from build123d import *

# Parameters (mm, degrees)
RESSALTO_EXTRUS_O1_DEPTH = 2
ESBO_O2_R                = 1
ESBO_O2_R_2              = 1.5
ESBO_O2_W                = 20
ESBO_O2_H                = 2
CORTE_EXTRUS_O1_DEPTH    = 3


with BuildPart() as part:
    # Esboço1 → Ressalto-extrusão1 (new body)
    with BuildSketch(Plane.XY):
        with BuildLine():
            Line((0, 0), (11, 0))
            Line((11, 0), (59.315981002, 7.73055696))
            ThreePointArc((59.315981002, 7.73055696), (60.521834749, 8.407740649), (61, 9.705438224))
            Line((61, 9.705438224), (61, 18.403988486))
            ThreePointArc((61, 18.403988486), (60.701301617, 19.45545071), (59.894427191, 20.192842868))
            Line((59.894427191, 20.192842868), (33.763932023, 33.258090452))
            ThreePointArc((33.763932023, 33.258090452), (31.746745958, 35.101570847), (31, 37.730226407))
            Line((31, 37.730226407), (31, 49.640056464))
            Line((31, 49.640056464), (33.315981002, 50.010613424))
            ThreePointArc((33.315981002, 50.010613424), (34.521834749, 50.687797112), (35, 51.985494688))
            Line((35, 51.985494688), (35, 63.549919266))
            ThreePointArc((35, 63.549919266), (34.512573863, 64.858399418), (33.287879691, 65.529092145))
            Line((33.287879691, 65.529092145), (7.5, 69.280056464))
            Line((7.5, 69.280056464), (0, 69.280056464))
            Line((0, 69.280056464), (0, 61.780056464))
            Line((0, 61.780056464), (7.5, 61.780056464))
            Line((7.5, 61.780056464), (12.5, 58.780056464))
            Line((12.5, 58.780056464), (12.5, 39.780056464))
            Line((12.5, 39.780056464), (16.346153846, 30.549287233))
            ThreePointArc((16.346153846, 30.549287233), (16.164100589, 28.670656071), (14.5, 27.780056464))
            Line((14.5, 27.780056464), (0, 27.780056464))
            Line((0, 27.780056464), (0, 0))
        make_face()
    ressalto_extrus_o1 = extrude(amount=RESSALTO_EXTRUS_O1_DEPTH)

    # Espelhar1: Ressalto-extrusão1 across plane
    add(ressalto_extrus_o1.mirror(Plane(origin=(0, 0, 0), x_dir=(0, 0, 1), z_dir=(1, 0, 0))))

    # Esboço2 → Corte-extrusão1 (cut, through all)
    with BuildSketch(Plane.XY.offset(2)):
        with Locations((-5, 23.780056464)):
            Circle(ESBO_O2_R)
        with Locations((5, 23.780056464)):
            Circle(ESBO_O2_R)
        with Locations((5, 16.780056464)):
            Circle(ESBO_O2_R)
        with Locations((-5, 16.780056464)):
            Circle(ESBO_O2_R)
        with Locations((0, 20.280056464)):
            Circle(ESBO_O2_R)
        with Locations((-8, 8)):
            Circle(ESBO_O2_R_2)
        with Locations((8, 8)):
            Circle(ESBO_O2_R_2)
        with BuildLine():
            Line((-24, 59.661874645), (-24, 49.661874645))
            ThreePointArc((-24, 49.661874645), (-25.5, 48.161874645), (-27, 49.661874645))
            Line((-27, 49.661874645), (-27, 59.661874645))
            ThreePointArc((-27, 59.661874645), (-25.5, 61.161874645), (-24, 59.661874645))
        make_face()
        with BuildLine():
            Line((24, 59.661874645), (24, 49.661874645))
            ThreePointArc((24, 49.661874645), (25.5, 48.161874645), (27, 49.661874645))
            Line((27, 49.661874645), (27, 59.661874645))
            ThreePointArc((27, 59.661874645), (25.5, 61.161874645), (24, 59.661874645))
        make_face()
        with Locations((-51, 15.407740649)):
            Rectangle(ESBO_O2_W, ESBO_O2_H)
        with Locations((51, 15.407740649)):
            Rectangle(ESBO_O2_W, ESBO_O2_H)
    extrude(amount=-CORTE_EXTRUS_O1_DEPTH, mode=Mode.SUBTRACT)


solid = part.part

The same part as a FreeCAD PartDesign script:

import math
import FreeCAD as App
import Part
import Sketcher
Q = App.Units.Quantity


def add_polygon(sketch, points):
    """Adds a closed chain of lines whose ends are joined by coincident constraints."""
    first, n = sketch.GeometryCount, len(points)
    for a, b in zip(points, points[1:] + points[:1]):
        sketch.addGeometry(Part.LineSegment(App.Vector(*a, 0), App.Vector(*b, 0)), False)
    for i in range(n):
        sketch.addConstraint(Sketcher.Constraint("Coincident", first + i, 2, first + (i + 1) % n, 1))

doc = App.newDocument("Part")
params = doc.addObject("Spreadsheet::Sheet", "Params")
for row, (alias, value) in enumerate([
    ("sketch1_radius", "2 mm"),
    ("sketch1_radius2", "5 mm"),
    ("sketch1_width", "11 mm"),
    ("sketch1_height", "19 mm"),
    ("sketch1_length", "10 mm"),
    ("pad1_length", "2 mm"),
    ("sketch2_diameter", "2 mm"),
    ("sketch2_diameter2", "3 mm"),
    ("sketch2_width", "20 mm"),
    ("sketch2_height", "10 mm"),
    ("sketch2_height2", "2 mm"),
], start=1):
    params.set(f"A{row}", alias)
    params.set(f"B{row}", "=" + value)
    params.setAlias(f"B{row}", alias)

body = doc.addObject("PartDesign::Body", "Body")

# Sketch on XY plane
sketch1 = doc.addObject("Sketcher::SketchObject", "Sketch")
body.addObject(sketch1)
sketch1.AttachmentSupport = (doc.XY_Plane, [""])
sketch1.MapMode = "FlatFace"
sketch1.addGeometry([
    Part.LineSegment(App.Vector(0, 0, 0), App.Vector(11, 0, 0)),  # 0
    Part.LineSegment(App.Vector(11, 0, 0), App.Vector(59.315981, 7.730557, 0)),  # 1
    Part.ArcOfCircle(Part.Circle(App.Vector(59, 9.705438, 0), App.Vector(0, 0, 1), 2), math.radians(-80.909723), math.radians(0)),  # 2
    Part.LineSegment(App.Vector(61, 9.705438, 0), App.Vector(61, 18.403988, 0)),  # 3
    Part.ArcOfCircle(Part.Circle(App.Vector(59, 18.403988, 0), App.Vector(0, 0, 1), 2), math.radians(0), math.radians(63.434949)),  # 4
    Part.LineSegment(App.Vector(59.894427, 20.192843, 0), App.Vector(33.763932, 33.25809, 0)),  # 5
    Part.ArcOfCircle(Part.Circle(App.Vector(36, 37.730226, 0), App.Vector(0, 0, 1), 5), math.radians(180), math.radians(243.434949)),  # 6
    Part.LineSegment(App.Vector(31, 37.730226, 0), App.Vector(31, 49.640056, 0)),  # 7
    Part.LineSegment(App.Vector(31, 49.640056, 0), App.Vector(33.315981, 50.010613, 0)),  # 8
    Part.ArcOfCircle(Part.Circle(App.Vector(33, 51.985495, 0), App.Vector(0, 0, 1), 2), math.radians(-80.909723), math.radians(0)),  # 9
    Part.LineSegment(App.Vector(35, 51.985495, 0), App.Vector(35, 63.549919, 0)),  # 10
    Part.ArcOfCircle(Part.Circle(App.Vector(33, 63.549919, 0), App.Vector(0, 0, 1), 2), math.radians(0), math.radians(81.724107)),  # 11
    Part.LineSegment(App.Vector(33.28788, 65.529092, 0), App.Vector(7.5, 69.280056, 0)),  # 12
    Part.LineSegment(App.Vector(7.5, 69.280056, 0), App.Vector(0, 69.280056, 0)),  # 13
    Part.LineSegment(App.Vector(0, 69.280056, 0), App.Vector(0, 61.780056, 0)),  # 14
    Part.LineSegment(App.Vector(0, 61.780056, 0), App.Vector(7.5, 61.780056, 0)),  # 15
    Part.LineSegment(App.Vector(7.5, 61.780056, 0), App.Vector(12.5, 58.780056, 0)),  # 16
    Part.LineSegment(App.Vector(12.5, 58.780056, 0), App.Vector(12.5, 39.780056, 0)),  # 17
    Part.LineSegment(App.Vector(12.5, 39.780056, 0), App.Vector(16.346154, 30.549287, 0)),  # 18
    Part.ArcOfCircle(Part.Circle(App.Vector(14.5, 29.780056, 0), App.Vector(0, 0, 1), 2), math.radians(-90), math.radians(22.619865)),  # 19
    Part.LineSegment(App.Vector(14.5, 27.780056, 0), App.Vector(0, 27.780056, 0)),  # 20
    Part.LineSegment(App.Vector(0, 27.780056, 0), App.Vector(0, 0, 0)),  # 21
], False)
sketch1.addConstraint([
    Sketcher.Constraint("Coincident", 0, 2, 1, 1),
    Sketcher.Constraint("Tangent", 1, 2, 2, 1),
    Sketcher.Constraint("Tangent", 2, 2, 3, 1),
    Sketcher.Constraint("Tangent", 3, 2, 4, 1),
    Sketcher.Constraint("Tangent", 4, 2, 5, 1),
    Sketcher.Constraint("Tangent", 5, 2, 6, 2),
    Sketcher.Constraint("Tangent", 6, 1, 7, 1),
    Sketcher.Constraint("Coincident", 7, 2, 8, 1),
    Sketcher.Constraint("Tangent", 8, 2, 9, 1),
    Sketcher.Constraint("Tangent", 9, 2, 10, 1),
    Sketcher.Constraint("Tangent", 10, 2, 11, 1),
    Sketcher.Constraint("Tangent", 11, 2, 12, 1),
    Sketcher.Constraint("Coincident", 12, 2, 13, 1),
    Sketcher.Constraint("Coincident", 13, 2, 14, 1),
    Sketcher.Constraint("Coincident", 14, 2, 15, 1),
    Sketcher.Constraint("Coincident", 15, 2, 16, 1),
    Sketcher.Constraint("Coincident", 16, 2, 17, 1),
    Sketcher.Constraint("Coincident", 17, 2, 18, 1),
    Sketcher.Constraint("Tangent", 18, 2, 19, 2),
    Sketcher.Constraint("Tangent", 19, 1, 20, 1),
    Sketcher.Constraint("Coincident", 20, 2, 21, 1),
    Sketcher.Constraint("Coincident", 21, 2, 0, 1),
    Sketcher.Constraint("Horizontal", 0),
    Sketcher.Constraint("Vertical", 3),
    Sketcher.Constraint("Vertical", 7),
    Sketcher.Constraint("Vertical", 10),
    Sketcher.Constraint("Horizontal", 13),
    Sketcher.Constraint("Vertical", 14),
    Sketcher.Constraint("Horizontal", 15),
    Sketcher.Constraint("Vertical", 17),
    Sketcher.Constraint("Horizontal", 20),
    Sketcher.Constraint("Vertical", 21),
    Sketcher.Constraint("Coincident", 21, 2, -1, 1),
    Sketcher.Constraint("Equal", 2, 4),
    Sketcher.Constraint("Equal", 4, 9),
    Sketcher.Constraint("Equal", 9, 11),
    Sketcher.Constraint("Equal", 11, 19),
    Sketcher.Constraint("PointOnObject", 13, 2, -2),
    Sketcher.Constraint("Parallel", 1, 8),
    Sketcher.Constraint("Vertical", 12, 2, 15, 2),
    Sketcher.Constraint("Equal", 15, 14),
    Sketcher.Constraint("Radius", 2, Q("2 mm")),
    Sketcher.Constraint("Radius", 6, Q("5 mm")),
    Sketcher.Constraint("DistanceX", 0, 1, 0, 2, Q("11 mm")),
    Sketcher.Constraint("DistanceY", 17, 2, 17, 1, Q("19 mm")),
    Sketcher.Constraint("Distance", 18, Q("10 mm")),
    Sketcher.Constraint("DistanceX", 13, 2, 13, 1, Q("7.5 mm")),
    Sketcher.Constraint("DistanceX", 20, 2, 20, 1, Q("14.5 mm")),
    Sketcher.Constraint("DistanceX", -1, 1, 2, 3, Q("59 mm")),
    Sketcher.Constraint("DistanceX", -1, 1, 6, 3, Q("36 mm")),
    Sketcher.Constraint("DistanceX", -1, 1, 9, 3, Q("33 mm")),
    Sketcher.Constraint("DistanceX", 15, 2, 16, 2, Q("5 mm")),
    Sketcher.Constraint("DistanceY", 16, 2, 15, 2, Q("3 mm")),
    Sketcher.Constraint("DistanceY", 7, 2, 12, 2, Q("19.64 mm")),
    Sketcher.Constraint("DistanceY", 3, 1, 3, 2, Q("8.69855 mm")),
    Sketcher.Constraint("DistanceY", 7, 1, 7, 2, Q("11.90983 mm")),
    Sketcher.Constraint("DistanceY", 1, 2, 19, 3, Q("22.0495 mm")),
    Sketcher.Constraint("DistanceX", 11, 2, 8, 2, Q("0.028101 mm")),
    Sketcher.Constraint("Distance", 8, Q("2.345438 mm")),
])
sketch1.setExpression("Constraints[41]", "Params.sketch1_radius")
sketch1.setExpression("Constraints[42]", "Params.sketch1_radius2")
sketch1.setExpression("Constraints[43]", "Params.sketch1_width")
sketch1.setExpression("Constraints[44]", "Params.sketch1_height")
sketch1.setExpression("Constraints[45]", "Params.sketch1_length")
pad1 = doc.addObject("PartDesign::Pad", "Pad")
body.addObject(pad1)
pad1.Profile = sketch1
pad1.setExpression("Length", "Params.pad1_length")
doc.recompute()

mirrored = doc.addObject("PartDesign::Mirrored", "Mirrored")
body.addObject(mirrored)
mirrored.Originals = [pad1]
mirrored.MirrorPlane = (doc.YZ_Plane, [""])
body.Tip = mirrored

# Sketch on XY plane
sketch2 = doc.addObject("Sketcher::SketchObject", "Sketch001")
body.addObject(sketch2)
sketch2.AttachmentSupport = (doc.XY_Plane, [""])
sketch2.MapMode = "FlatFace"
sketch2.AttachmentOffset = App.Placement(App.Vector(0, 0, 2), App.Rotation())
sketch2.addGeometry(Part.Circle(App.Vector(-5, 23.780056, 0), App.Vector(0, 0, 1), 1), False)  # 0
sketch2.addGeometry(Part.Circle(App.Vector(5, 23.780056, 0), App.Vector(0, 0, 1), 1), False)  # 1
sketch2.addGeometry(Part.Circle(App.Vector(5, 16.780056, 0), App.Vector(0, 0, 1), 1), False)  # 2
sketch2.addGeometry(Part.Circle(App.Vector(-5, 16.780056, 0), App.Vector(0, 0, 1), 1), False)  # 3
sketch2.addGeometry(Part.Circle(App.Vector(0, 20.280056, 0), App.Vector(0, 0, 1), 1), False)  # 4
sketch2.addGeometry(Part.Circle(App.Vector(-8, 8, 0), App.Vector(0, 0, 1), 1.5), False)  # 5
sketch2.addGeometry(Part.Circle(App.Vector(8, 8, 0), App.Vector(0, 0, 1), 1.5), False)  # 6
sketch2.addGeometry(Part.LineSegment(App.Vector(-24, 49.661875, 0), App.Vector(-24, 59.661875, 0)), False)  # 7
sketch2.addGeometry(Part.ArcOfCircle(Part.Circle(App.Vector(-25.5, 59.661875, 0), App.Vector(0, 0, 1), 1.5), math.radians(0), math.radians(180)), False)  # 8
sketch2.addGeometry(Part.LineSegment(App.Vector(-27, 59.661875, 0), App.Vector(-27, 49.661875, 0)), False)  # 9
sketch2.addGeometry(Part.ArcOfCircle(Part.Circle(App.Vector(-25.5, 49.661875, 0), App.Vector(0, 0, 1), 1.5), math.radians(180), math.radians(360)), False)  # 10
sketch2.addGeometry(Part.LineSegment(App.Vector(24, 59.661875, 0), App.Vector(24, 49.661875, 0)), False)  # 11
sketch2.addGeometry(Part.ArcOfCircle(Part.Circle(App.Vector(25.5, 49.661875, 0), App.Vector(0, 0, 1), 1.5), math.radians(180), math.radians(360)), False)  # 12
sketch2.addGeometry(Part.LineSegment(App.Vector(27, 49.661875, 0), App.Vector(27, 59.661875, 0)), False)  # 13
sketch2.addGeometry(Part.ArcOfCircle(Part.Circle(App.Vector(25.5, 59.661875, 0), App.Vector(0, 0, 1), 1.5), math.radians(0), math.radians(180)), False)  # 14
add_polygon(sketch2, [(-61, 16.407741), (-61, 14.407741), (-41, 14.407741), (-41, 16.407741)])  # lines 15-18
add_polygon(sketch2, [(41, 16.407741), (41, 14.407741), (61, 14.407741), (61, 16.407741)])  # lines 19-22
sketch2.addConstraint([
    Sketcher.Constraint("Tangent", 7, 2, 8, 1),
    Sketcher.Constraint("Tangent", 8, 2, 9, 1),
    Sketcher.Constraint("Tangent", 9, 2, 10, 1),
    Sketcher.Constraint("Tangent", 10, 2, 7, 1),
    Sketcher.Constraint("Tangent", 11, 2, 12, 1),
    Sketcher.Constraint("Tangent", 12, 2, 13, 1),
    Sketcher.Constraint("Tangent", 13, 2, 14, 1),
    Sketcher.Constraint("Tangent", 14, 2, 11, 1),
    Sketcher.Constraint("Vertical", 7),
    Sketcher.Constraint("Vertical", 9),
    Sketcher.Constraint("Vertical", 11),
    Sketcher.Constraint("Vertical", 13),
    Sketcher.Constraint("Vertical", 15),
    Sketcher.Constraint("Horizontal", 16),
    Sketcher.Constraint("Vertical", 17),
    Sketcher.Constraint("Horizontal", 18),
    Sketcher.Constraint("Vertical", 19),
    Sketcher.Constraint("Horizontal", 20),
    Sketcher.Constraint("Vertical", 21),
    Sketcher.Constraint("Horizontal", 22),
    Sketcher.Constraint("Equal", 0, 1),
    Sketcher.Constraint("Equal", 1, 2),
    Sketcher.Constraint("Equal", 2, 3),
    Sketcher.Constraint("Equal", 3, 4),
    Sketcher.Constraint("Equal", 5, 6),
    Sketcher.Constraint("Equal", 6, 8),
    Sketcher.Constraint("Equal", 10, 12),
    Sketcher.Constraint("Symmetric", 0, 3, 1, 3, -2),
    Sketcher.Constraint("Symmetric", 2, 3, 3, 3, -2),
    Sketcher.Constraint("Symmetric", 5, 3, 6, 3, -2),
    Sketcher.Constraint("Symmetric", 10, 3, 12, 3, -2),
    Sketcher.Constraint("Symmetric", 16, 2, 19, 2, -2),
    Sketcher.Constraint("Symmetric", 18, 2, 21, 2, -2),
    Sketcher.Constraint("PointOnObject", 4, 3, -2),
    Sketcher.Constraint("Horizontal", 8, 3, 14, 3),
    Sketcher.Constraint("Vertical", 1, 3, 2, 3),
    Sketcher.Constraint("Diameter", 0, Q("2 mm")),
    Sketcher.Constraint("Diameter", 5, Q("3 mm")),
    Sketcher.Constraint("DistanceX", 16, 1, 16, 2, Q("20 mm")),
    Sketcher.Constraint("DistanceY", 7, 1, 7, 2, Q("10 mm")),
    Sketcher.Constraint("DistanceY", 15, 2, 15, 1, Q("2 mm")),
    Sketcher.Constraint("DistanceX", 0, 3, -1, 1, Q("5 mm")),
    Sketcher.Constraint("DistanceX", 5, 3, -1, 1, Q("8 mm")),
    Sketcher.Constraint("DistanceY", -1, 1, 5, 3, Q("8 mm")),
    Sketcher.Constraint("DistanceX", 7, 2, -1, 1, Q("24 mm")),
    Sketcher.Constraint("DistanceX", 15, 2, -1, 1, Q("61 mm")),
    Sketcher.Constraint("DistanceY", 2, 3, 1, 3, Q("7 mm")),
    Sketcher.Constraint("DistanceY", 4, 3, 0, 3, Q("3.5 mm")),
    Sketcher.Constraint("DistanceY", -1, 1, 15, 2, Q("14.407741 mm")),
    Sketcher.Constraint("DistanceY", 0, 3, 8, 3, Q("35.881818 mm")),
    Sketcher.Constraint("DistanceY", -1, 1, 0, 3, Q("23.780056 mm")),
])
sketch2.setExpression("Constraints[44]", "Params.sketch2_diameter")
sketch2.setExpression("Constraints[45]", "Params.sketch2_diameter2")
sketch2.setExpression("Constraints[46]", "Params.sketch2_width")
sketch2.setExpression("Constraints[47]", "Params.sketch2_height")
sketch2.setExpression("Constraints[48]", "Params.sketch2_height2")
pocket1 = doc.addObject("PartDesign::Pocket", "Pocket")
body.addObject(pocket1)
pocket1.Profile = sketch2
pocket1.Type = "ThroughAll"

doc.recompute()
